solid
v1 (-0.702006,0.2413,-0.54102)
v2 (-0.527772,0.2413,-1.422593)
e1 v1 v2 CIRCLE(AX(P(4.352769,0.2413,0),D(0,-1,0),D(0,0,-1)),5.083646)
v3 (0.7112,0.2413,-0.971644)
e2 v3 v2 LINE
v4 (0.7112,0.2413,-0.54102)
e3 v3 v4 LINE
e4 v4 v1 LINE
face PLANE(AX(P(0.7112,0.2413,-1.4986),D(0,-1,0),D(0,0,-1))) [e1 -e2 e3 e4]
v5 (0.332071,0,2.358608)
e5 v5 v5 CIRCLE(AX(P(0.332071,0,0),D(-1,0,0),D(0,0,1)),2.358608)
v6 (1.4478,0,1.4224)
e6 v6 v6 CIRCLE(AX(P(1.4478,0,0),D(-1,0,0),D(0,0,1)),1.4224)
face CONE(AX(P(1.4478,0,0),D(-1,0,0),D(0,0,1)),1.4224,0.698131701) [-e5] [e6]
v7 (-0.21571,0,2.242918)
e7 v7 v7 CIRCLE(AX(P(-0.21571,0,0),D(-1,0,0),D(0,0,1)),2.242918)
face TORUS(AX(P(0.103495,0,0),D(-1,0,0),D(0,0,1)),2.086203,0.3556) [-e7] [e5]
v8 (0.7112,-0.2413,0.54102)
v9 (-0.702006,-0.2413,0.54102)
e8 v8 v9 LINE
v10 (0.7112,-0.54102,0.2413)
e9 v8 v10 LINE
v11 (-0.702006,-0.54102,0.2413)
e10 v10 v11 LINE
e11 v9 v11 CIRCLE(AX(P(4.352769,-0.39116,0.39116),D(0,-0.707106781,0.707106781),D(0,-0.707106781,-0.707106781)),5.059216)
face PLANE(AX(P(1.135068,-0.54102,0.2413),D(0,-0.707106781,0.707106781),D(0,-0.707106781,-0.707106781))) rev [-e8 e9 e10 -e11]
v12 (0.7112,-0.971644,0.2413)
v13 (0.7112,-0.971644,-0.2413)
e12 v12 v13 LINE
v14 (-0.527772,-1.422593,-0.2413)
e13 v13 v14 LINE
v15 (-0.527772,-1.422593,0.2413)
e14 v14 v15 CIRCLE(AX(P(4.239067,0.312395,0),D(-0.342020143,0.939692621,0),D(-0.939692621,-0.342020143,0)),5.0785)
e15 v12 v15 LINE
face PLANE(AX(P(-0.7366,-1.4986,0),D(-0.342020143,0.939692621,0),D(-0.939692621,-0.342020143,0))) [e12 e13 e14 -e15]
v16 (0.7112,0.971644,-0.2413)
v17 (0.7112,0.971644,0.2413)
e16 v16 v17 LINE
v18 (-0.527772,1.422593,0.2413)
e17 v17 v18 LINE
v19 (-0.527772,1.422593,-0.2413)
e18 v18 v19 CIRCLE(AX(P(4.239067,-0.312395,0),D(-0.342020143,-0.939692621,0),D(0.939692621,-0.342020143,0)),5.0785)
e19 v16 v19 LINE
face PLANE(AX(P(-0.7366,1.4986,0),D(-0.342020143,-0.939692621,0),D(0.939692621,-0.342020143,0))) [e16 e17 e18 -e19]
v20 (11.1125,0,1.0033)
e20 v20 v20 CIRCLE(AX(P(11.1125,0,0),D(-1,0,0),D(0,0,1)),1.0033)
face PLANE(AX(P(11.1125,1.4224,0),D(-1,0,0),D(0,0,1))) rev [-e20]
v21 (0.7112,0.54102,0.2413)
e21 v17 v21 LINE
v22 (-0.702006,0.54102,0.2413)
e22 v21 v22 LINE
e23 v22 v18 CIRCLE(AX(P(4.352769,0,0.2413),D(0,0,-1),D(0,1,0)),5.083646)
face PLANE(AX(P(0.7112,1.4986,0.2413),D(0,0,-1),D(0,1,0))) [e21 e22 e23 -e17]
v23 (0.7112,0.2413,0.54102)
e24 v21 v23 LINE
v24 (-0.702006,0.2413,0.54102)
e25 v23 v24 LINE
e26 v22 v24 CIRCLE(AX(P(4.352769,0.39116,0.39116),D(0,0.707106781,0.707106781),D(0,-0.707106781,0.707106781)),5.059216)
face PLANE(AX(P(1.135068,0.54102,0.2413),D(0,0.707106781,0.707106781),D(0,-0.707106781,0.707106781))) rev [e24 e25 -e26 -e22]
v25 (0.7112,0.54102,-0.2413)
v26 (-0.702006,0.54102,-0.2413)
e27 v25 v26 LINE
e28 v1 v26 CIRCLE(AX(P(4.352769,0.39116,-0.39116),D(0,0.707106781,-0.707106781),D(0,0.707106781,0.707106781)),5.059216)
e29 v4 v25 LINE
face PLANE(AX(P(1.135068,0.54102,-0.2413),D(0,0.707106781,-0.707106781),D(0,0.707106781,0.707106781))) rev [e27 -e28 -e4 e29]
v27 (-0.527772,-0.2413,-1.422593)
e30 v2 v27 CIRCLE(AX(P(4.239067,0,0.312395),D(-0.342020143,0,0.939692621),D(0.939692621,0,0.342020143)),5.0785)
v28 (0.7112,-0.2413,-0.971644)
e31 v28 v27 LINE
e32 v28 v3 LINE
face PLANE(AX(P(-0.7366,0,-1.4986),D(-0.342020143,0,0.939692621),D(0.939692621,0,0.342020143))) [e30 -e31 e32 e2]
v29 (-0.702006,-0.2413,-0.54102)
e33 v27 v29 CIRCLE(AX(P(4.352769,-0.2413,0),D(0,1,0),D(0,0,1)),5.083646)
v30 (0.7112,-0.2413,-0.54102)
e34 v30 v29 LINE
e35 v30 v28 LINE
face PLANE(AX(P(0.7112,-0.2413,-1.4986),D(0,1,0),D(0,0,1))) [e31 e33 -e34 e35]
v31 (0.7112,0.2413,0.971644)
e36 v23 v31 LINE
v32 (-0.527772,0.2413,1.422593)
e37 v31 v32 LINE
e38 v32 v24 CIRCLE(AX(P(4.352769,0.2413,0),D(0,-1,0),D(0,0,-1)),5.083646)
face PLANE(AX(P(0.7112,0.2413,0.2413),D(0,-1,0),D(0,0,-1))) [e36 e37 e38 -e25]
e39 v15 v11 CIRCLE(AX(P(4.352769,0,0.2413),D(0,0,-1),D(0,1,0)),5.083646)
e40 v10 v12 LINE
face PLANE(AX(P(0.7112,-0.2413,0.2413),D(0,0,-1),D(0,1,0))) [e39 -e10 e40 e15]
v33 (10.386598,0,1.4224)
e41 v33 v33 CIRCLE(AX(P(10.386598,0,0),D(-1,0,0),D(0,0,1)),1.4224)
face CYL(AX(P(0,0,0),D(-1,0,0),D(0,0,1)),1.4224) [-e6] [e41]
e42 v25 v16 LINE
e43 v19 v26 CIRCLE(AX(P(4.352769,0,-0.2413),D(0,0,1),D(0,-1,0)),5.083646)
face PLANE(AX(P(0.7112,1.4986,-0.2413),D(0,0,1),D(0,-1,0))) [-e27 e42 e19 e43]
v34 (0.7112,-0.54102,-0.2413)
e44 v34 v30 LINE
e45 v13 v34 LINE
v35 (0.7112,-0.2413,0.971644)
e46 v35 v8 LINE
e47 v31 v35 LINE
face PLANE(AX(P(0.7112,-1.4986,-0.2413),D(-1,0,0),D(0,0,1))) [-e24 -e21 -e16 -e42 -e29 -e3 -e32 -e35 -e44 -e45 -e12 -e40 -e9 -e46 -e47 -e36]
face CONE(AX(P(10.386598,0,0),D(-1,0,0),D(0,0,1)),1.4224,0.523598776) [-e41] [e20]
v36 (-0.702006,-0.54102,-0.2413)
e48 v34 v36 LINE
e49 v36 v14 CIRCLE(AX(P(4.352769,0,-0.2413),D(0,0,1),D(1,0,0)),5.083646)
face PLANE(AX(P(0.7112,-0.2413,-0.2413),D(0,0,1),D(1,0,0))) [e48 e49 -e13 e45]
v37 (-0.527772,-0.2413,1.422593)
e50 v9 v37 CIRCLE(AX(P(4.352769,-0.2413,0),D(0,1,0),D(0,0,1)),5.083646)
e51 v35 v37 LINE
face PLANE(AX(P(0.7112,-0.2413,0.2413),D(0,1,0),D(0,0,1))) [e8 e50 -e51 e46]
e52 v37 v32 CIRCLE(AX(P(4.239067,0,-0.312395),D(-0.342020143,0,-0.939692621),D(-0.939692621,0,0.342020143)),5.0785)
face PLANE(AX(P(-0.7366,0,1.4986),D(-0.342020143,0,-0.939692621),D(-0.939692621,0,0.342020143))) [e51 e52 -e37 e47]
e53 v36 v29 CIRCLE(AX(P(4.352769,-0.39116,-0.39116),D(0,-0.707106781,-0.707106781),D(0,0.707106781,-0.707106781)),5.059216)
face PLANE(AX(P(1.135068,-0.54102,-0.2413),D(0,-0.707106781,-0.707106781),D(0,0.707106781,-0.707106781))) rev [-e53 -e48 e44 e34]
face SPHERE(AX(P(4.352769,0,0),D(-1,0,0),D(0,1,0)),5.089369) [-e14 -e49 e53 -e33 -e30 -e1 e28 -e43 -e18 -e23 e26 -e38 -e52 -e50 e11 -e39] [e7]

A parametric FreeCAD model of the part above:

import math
import FreeCAD as App
import Part
import Sketcher

V = App.Vector
Q = App.Units.Quantity


def faces_at(feature, points):
    """Names of the faces that lie closest to the given points."""
    faces = feature.Shape.Faces
    near = lambda p: min(range(len(faces)), key=lambda i: faces[i].distToShape(Part.Vertex(*p))[0])
    return sorted({f"Face{near(p) + 1}" for p in points})

doc = App.newDocument("Part")
body = doc.addObject("PartDesign::Body", "Body")

# Sketch on XY plane
sketch1 = doc.addObject("Sketcher::SketchObject", "Sketch")
body.addObject(sketch1)
sketch1.AttachmentSupport = (doc.XY_Plane, [""])
sketch1.MapMode = "FlatFace"
sketch1.addGeometry(Part.LineSegment(V(1.45, 1.42, 0), V(0.33, 2.36, 0)), False)
sketch1.addGeometry(Part.ArcOfCircle(Part.Circle(V(0.1, 2.09, 0), V(0, 0, 1), 0.36), math.radians(50), math.radians(154)), False)
sketch1.addGeometry(Part.ArcOfCircle(Part.Circle(V(4.35, 0, 0), V(0, 0, 1), 5.09), math.radians(154), math.radians(180)), False)
sketch1.addGeometry(Part.LineSegment(V(-0.74, 0, 0), V(11.11, 0, 0)), False)
sketch1.addGeometry(Part.LineSegment(V(11.11, 0, 0), V(11.11, 1.42, 0)), False)
sketch1.addGeometry(Part.LineSegment(V(11.11, 1.42, 0), V(1.45, 1.42, 0)), False)
sketch1.addConstraint(Sketcher.Constraint("Tangent", 0, 2, 1, 1))
sketch1.addConstraint(Sketcher.Constraint("Tangent", 1, 2, 2, 1))
sketch1.addConstraint(Sketcher.Constraint("Coincident", 2, 2, 3, 1))
sketch1.addConstraint(Sketcher.Constraint("Coincident", 3, 2, 4, 1))
sketch1.addConstraint(Sketcher.Constraint("Coincident", 4, 2, 5, 1))
sketch1.addConstraint(Sketcher.Constraint("Coincident", 5, 2, 0, 1))
sketch1.addConstraint(Sketcher.Constraint("Horizontal", 3))
sketch1.addConstraint(Sketcher.Constraint("Vertical", 4))
sketch1.addConstraint(Sketcher.Constraint("Horizontal", 5))
sketch1.addConstraint(Sketcher.Constraint("PointOnObject", 2, 3, -1))
sketch1.addConstraint(Sketcher.Constraint("PointOnObject", 2, 2, -1))
sketch1.addConstraint(Sketcher.Constraint("Angle", 0, Q("140 deg")))
sketch1.addConstraint(Sketcher.Constraint("Radius", 1, Q("0.014 in")))
sketch1.addConstraint(Sketcher.Constraint("DistanceY", 4, 1, 4, 2, Q("0.056 in")))
sketch1.addConstraint(Sketcher.Constraint("DistanceX", 3, 1, 3, 2, Q("0.4665 in")))
sketch1.addConstraint(Sketcher.Constraint("DistanceX", 5, 2, 5, 1, Q("0.3805 in")))
sketch1.addConstraint(Sketcher.Constraint("DistanceX", 2, 2, -1, 1, Q("0.029 in")))
sketch1.addConstraint(Sketcher.Constraint("Radius", 2, Q("5.089369 mm")))
revolution = doc.addObject("PartDesign::Revolution", "Revolution")
body.addObject(revolution)
revolution.Profile = sketch1
revolution.ReferenceAxis = (sketch1, ["H_Axis"])
revolution.Angle = 360

# Sketch on YZ plane
sketch2 = doc.addObject("Sketcher::SketchObject", "Sketch001")
body.addObject(sketch2)
sketch2.AttachmentSupport = (doc.YZ_Plane, [""])
sketch2.MapMode = "FlatFace"
sketch2.AttachmentOffset = App.Placement(V(0, 0, -0.029 * 25.4), App.Rotation())
sketch2.addGeometry(Part.LineSegment(V(1.5, -0.24, 0), V(1.5, 0.24, 0)), False)
sketch2.addGeometry(Part.LineSegment(V(1.5, 0.24, 0), V(0.24, 0.24, 0)), False)
sketch2.addGeometry(Part.LineSegment(V(0.24, 0.24, 0), V(0.24, 1.5, 0)), False)
sketch2.addGeometry(Part.LineSegment(V(0.24, 1.5, 0), V(-0.24, 1.5, 0)), False)
sketch2.addGeometry(Part.LineSegment(V(-0.24, 1.5, 0), V(-0.24, 0.24, 0)), False)
sketch2.addGeometry(Part.LineSegment(V(-0.24, 0.24, 0), V(-1.5, 0.24, 0)), False)
sketch2.addGeometry(Part.LineSegment(V(-1.5, 0.24, 0), V(-1.5, -0.24, 0)), False)
sketch2.addGeometry(Part.LineSegment(V(-1.5, -0.24, 0), V(-0.24, -0.24, 0)), False)
sketch2.addGeometry(Part.LineSegment(V(-0.24, -0.24, 0), V(-0.24, -1.5, 0)), False)
sketch2.addGeometry(Part.LineSegment(V(-0.24, -1.5, 0), V(0.24, -1.5, 0)), False)
sketch2.addGeometry(Part.LineSegment(V(0.24, -1.5, 0), V(0.24, -0.24, 0)), False)
sketch2.addGeometry(Part.LineSegment(V(0.24, -0.24, 0), V(1.5, -0.24, 0)), False)
sketch2.addConstraint(Sketcher.Constraint("Coincident", 0, 2, 1, 1))
sketch2.addConstraint(Sketcher.Constraint("Coincident", 1, 2, 2, 1))
sketch2.addConstraint(Sketcher.Constraint("Coincident", 2, 2, 3, 1))
sketch2.addConstraint(Sketcher.Constraint("Coincident", 3, 2, 4, 1))
sketch2.addConstraint(Sketcher.Constraint("Coincident", 4, 2, 5, 1))
sketch2.addConstraint(Sketcher.Constraint("Coincident", 5, 2, 6, 1))
sketch2.addConstraint(Sketcher.Constraint("Coincident", 6, 2, 7, 1))
sketch2.addConstraint(Sketcher.Constraint("Coincident", 7, 2, 8, 1))
sketch2.addConstraint(Sketcher.Constraint("Coincident", 8, 2, 9, 1))
sketch2.addConstraint(Sketcher.Constraint("Coincident", 9, 2, 10, 1))
sketch2.addConstraint(Sketcher.Constraint("Coincident", 10, 2, 11, 1))
sketch2.addConstraint(Sketcher.Constraint("Coincident", 11, 2, 0, 1))
sketch2.addConstraint(Sketcher.Constraint("Vertical", 0))
sketch2.addConstraint(Sketcher.Constraint("Horizontal", 1))
sketch2.addConstraint(Sketcher.Constraint("Vertical", 2))
sketch2.addConstraint(Sketcher.Constraint("Horizontal", 3))
sketch2.addConstraint(Sketcher.Constraint("Vertical", 4))
sketch2.addConstraint(Sketcher.Constraint("Horizontal", 5))
sketch2.addConstraint(Sketcher.Constraint("Vertical", 6))
sketch2.addConstraint(Sketcher.Constraint("Horizontal", 7))
sketch2.addConstraint(Sketcher.Constraint("Vertical", 8))
sketch2.addConstraint(Sketcher.Constraint("Horizontal", 9))
sketch2.addConstraint(Sketcher.Constraint("Vertical", 10))
sketch2.addConstraint(Sketcher.Constraint("Horizontal", 11))
sketch2.addConstraint(Sketcher.Constraint("Symmetric", 0, 2, 6, 2, -1, 1))
sketch2.addConstraint(Sketcher.Constraint("Symmetric", 2, 2, 8, 2, -1, 1))
sketch2.addConstraint(Sketcher.Constraint("Symmetric", 4, 2, 10, 2, -1, 1))
sketch2.addConstraint(Sketcher.Constraint("Symmetric", 1, 2, 4, 2, -2))
sketch2.addConstraint(Sketcher.Constraint("Equal", 9, 0))
sketch2.addConstraint(Sketcher.Constraint("Equal", 11, 2))
sketch2.addConstraint(Sketcher.Constraint("DistanceX", 3, 2, 3, 1, Q("0.019 in")))
sketch2.addConstraint(Sketcher.Constraint("DistanceX", 1, 2, 1, 1, Q("0.0495 in")))
pocket1 = doc.addObject("PartDesign::Pocket", "Pocket")
body.addObject(pocket1)
pocket1.Profile = sketch2
pocket1.Length = Q("0.057 in")
pocket1.Reversed = True
doc.recompute()

datumplane = doc.addObject("PartDesign::Plane", "DatumPlane")
body.addObject(datumplane)
datumplane.AttachmentSupport = (doc.YZ_Plane, [""])
datumplane.MapMode = "FlatFace"
datumplane.AttachmentOffset = App.Placement(V(0, 0, -0.029 * 25.4), App.Rotation())
draft = doc.addObject("PartDesign::Draft", "Draft")
body.addObject(draft)
draft.Base = (pocket1, faces_at(pocket1, [
    (0.1, 0, -1.499),
    (0.1, -1.499, 0),
    (0.1, 0, 1.499),
    (0.1, 1.499, 0),
]))
draft.NeutralPlane = (datumplane, [""])
draft.Angle = 20
draft.Reversed = True

# Sketch on YZ plane
sketch3 = doc.addObject("Sketcher::SketchObject", "Sketch002")
body.addObject(sketch3)
sketch3.AttachmentSupport = (doc.YZ_Plane, [""])
sketch3.MapMode = "FlatFace"
sketch3.AttachmentOffset = App.Placement(V(0, 0, -0.029 * 25.4), App.Rotation())
sketch3.addGeometry(Part.LineSegment(V(0.24, 0.54, 0), V(0.54, 0.24, 0)), False)
sketch3.addGeometry(Part.LineSegment(V(0.54, 0.24, 0), V(0.24, 0.24, 0)), False)
sketch3.addGeometry(Part.LineSegment(V(0.24, 0.24, 0), V(0.24, 0.54, 0)), False)
sketch3.addGeometry(Part.LineSegment(V(0.24, -0.54, 0), V(0.24, -0.24, 0)), False)
sketch3.addGeometry(Part.LineSegment(V(0.24, -0.24, 0), V(0.54, -0.24, 0)), False)
sketch3.addGeometry(Part.LineSegment(V(0.54, -0.24, 0), V(0.24, -0.54, 0)), False)
sketch3.addGeometry(Part.LineSegment(V(-0.24, -0.54, 0), V(-0.54, -0.24, 0)), False)
sketch3.addGeometry(Part.LineSegment(V(-0.54, -0.24, 0), V(-0.24, -0.24, 0)), False)
sketch3.addGeometry(Part.LineSegment(V(-0.24, -0.24, 0), V(-0.24, -0.54, 0)), False)
sketch3.addGeometry(Part.LineSegment(V(-0.24, 0.54, 0), V(-0.24, 0.24, 0)), False)
sketch3.addGeometry(Part.LineSegment(V(-0.24, 0.24, 0), V(-0.54, 0.24, 0)), False)
sketch3.addGeometry(Part.LineSegment(V(-0.54, 0.24, 0), V(-0.24, 0.54, 0)), False)
sketch3.addConstraint(Sketcher.Constraint("Coincident", 0, 2, 1, 1))
sketch3.addConstraint(Sketcher.Constraint("Coincident", 1, 2, 2, 1))
sketch3.addConstraint(Sketcher.Constraint("Coincident", 2, 2, 0, 1))
sketch3.addConstraint(Sketcher.Constraint("Coincident", 3, 2, 4, 1))
sketch3.addConstraint(Sketcher.Constraint("Coincident", 4, 2, 5, 1))
sketch3.addConstraint(Sketcher.Constraint("Coincident", 5, 2, 3, 1))
sketch3.addConstraint(Sketcher.Constraint("Coincident", 6, 2, 7, 1))
sketch3.addConstraint(Sketcher.Constraint("Coincident", 7, 2, 8, 1))
sketch3.addConstraint(Sketcher.Constraint("Coincident", 8, 2, 6, 1))
sketch3.addConstraint(Sketcher.Constraint("Coincident", 9, 2, 10, 1))
sketch3.addConstraint(Sketcher.Constraint("Coincident", 10, 2, 11, 1))
sketch3.addConstraint(Sketcher.Constraint("Coincident", 11, 2, 9, 1))
sketch3.addConstraint(Sketcher.Constraint("Horizontal", 1))
sketch3.addConstraint(Sketcher.Constraint("Vertical", 2))
sketch3.addConstraint(Sketcher.Constraint("Vertical", 3))
sketch3.addConstraint(Sketcher.Constraint("Horizontal", 4))
sketch3.addConstraint(Sketcher.Constraint("Horizontal", 7))
sketch3.addConstraint(Sketcher.Constraint("Vertical", 8))
sketch3.addConstraint(Sketcher.Constraint("Vertical", 9))
sketch3.addConstraint(Sketcher.Constraint("Horizontal", 10))
sketch3.addConstraint(Sketcher.Constraint("Symmetric", 0, 2, 6, 2, -1, 1))
sketch3.addConstraint(Sketcher.Constraint("Symmetric", 2, 2, 8, 2, -1, 1))
sketch3.addConstraint(Sketcher.Constraint("Symmetric", 3, 2, 9, 2, -1, 1))
sketch3.addConstraint(Sketcher.Constraint("Symmetric", 4, 2, 6, 2, -2))
sketch3.addConstraint(Sketcher.Constraint("Symmetric", 5, 2, 8, 2, -2))
sketch3.addConstraint(Sketcher.Constraint("Perpendicular", 0, 5))
sketch3.addConstraint(Sketcher.Constraint("Perpendicular", 6, 11))
sketch3.addConstraint(Sketcher.Constraint("Horizontal", 2, 2, 11, 2))
sketch3.addConstraint(Sketcher.Constraint("DistanceX", 1, 2, 1, 1, Q("0.0118 in")))
sketch3.addConstraint(Sketcher.Constraint("DistanceY", 3, 2, 1, 2, Q("0.019 in")))
sketch3.addConstraint(Sketcher.Constraint("DistanceX", 7, 2, 3, 2, Q("0.019 in")))
pocket2 = doc.addObject("PartDesign::Pocket", "Pocket001")
body.addObject(pocket2)
pocket2.Profile = sketch3
pocket2.Length = Q("0.057 in")
pocket2.Reversed = True

# Sketch on XY plane
sketch4 = doc.addObject("Sketcher::SketchObject", "Sketch003")
body.addObject(sketch4)
sketch4.AttachmentSupport = (doc.XY_Plane, [""])
sketch4.MapMode = "FlatFace"
sketch4.addGeometry(Part.LineSegment(V(11.1, 0, 0), V(11.6, 0, 0)), False)
sketch4.addGeometry(Part.LineSegment(V(11.6, 0, 0), V(11.6, 1.9, 0)), False)
sketch4.addGeometry(Part.LineSegment(V(11.6, 1.9, 0), V(10.4, 1.9, 0)), False)
sketch4.addGeometry(Part.LineSegment(V(10.4, 1.9, 0), V(10.4, 1.4, 0)), False)
sketch4.addGeometry(Part.LineSegment(V(10.4, 1.4, 0), V(11.1, 1, 0)), False)
sketch4.addGeometry(Part.LineSegment(V(11.1, 1, 0), V(11.1, 0, 0)), False)
sketch4.addConstraint(Sketcher.Constraint("Coincident", 0, 2, 1, 1))
sketch4.addConstraint(Sketcher.Constraint("Coincident", 1, 2, 2, 1))
sketch4.addConstraint(Sketcher.Constraint("Coincident", 2, 2, 3, 1))
sketch4.addConstraint(Sketcher.Constraint("Coincident", 3, 2, 4, 1))
sketch4.addConstraint(Sketcher.Constraint("Coincident", 4, 2, 5, 1))
sketch4.addConstraint(Sketcher.Constraint("Coincident", 5, 2, 0, 1))
sketch4.addConstraint(Sketcher.Constraint("Horizontal", 0))
sketch4.addConstraint(Sketcher.Constraint("Vertical", 1))
sketch4.addConstraint(Sketcher.Constraint("Horizontal", 2))
sketch4.addConstraint(Sketcher.Constraint("Vertical", 3))
sketch4.addConstraint(Sketcher.Constraint("Vertical", 5))
sketch4.addConstraint(Sketcher.Constraint("PointOnObject", 0, 2, -1))
sketch4.addConstraint(Sketcher.Constraint("Equal", 0, 3))
sketch4.addConstraint(Sketcher.Constraint("Angle", 4, Q("-30 deg")))
sketch4.addConstraint(Sketcher.Constraint("DistanceX", 0, 1, 0, 2, Q("0.02 in")))
sketch4.addConstraint(Sketcher.Constraint("DistanceY", 1, 1, 1, 2, Q("0.076 in")))
sketch4.addConstraint(Sketcher.Constraint("Distance", 4, Q("0.033 in")))
sketch4.addConstraint(Sketcher.Constraint("DistanceX", -1, 1, 4, 2, Q("0.4375 in")))
groove = doc.addObject("PartDesign::Groove", "Groove")
body.addObject(groove)
groove.Profile = sketch4
groove.ReferenceAxis = (sketch4, ["H_Axis"])
groove.Angle = 360

doc.recompute()
